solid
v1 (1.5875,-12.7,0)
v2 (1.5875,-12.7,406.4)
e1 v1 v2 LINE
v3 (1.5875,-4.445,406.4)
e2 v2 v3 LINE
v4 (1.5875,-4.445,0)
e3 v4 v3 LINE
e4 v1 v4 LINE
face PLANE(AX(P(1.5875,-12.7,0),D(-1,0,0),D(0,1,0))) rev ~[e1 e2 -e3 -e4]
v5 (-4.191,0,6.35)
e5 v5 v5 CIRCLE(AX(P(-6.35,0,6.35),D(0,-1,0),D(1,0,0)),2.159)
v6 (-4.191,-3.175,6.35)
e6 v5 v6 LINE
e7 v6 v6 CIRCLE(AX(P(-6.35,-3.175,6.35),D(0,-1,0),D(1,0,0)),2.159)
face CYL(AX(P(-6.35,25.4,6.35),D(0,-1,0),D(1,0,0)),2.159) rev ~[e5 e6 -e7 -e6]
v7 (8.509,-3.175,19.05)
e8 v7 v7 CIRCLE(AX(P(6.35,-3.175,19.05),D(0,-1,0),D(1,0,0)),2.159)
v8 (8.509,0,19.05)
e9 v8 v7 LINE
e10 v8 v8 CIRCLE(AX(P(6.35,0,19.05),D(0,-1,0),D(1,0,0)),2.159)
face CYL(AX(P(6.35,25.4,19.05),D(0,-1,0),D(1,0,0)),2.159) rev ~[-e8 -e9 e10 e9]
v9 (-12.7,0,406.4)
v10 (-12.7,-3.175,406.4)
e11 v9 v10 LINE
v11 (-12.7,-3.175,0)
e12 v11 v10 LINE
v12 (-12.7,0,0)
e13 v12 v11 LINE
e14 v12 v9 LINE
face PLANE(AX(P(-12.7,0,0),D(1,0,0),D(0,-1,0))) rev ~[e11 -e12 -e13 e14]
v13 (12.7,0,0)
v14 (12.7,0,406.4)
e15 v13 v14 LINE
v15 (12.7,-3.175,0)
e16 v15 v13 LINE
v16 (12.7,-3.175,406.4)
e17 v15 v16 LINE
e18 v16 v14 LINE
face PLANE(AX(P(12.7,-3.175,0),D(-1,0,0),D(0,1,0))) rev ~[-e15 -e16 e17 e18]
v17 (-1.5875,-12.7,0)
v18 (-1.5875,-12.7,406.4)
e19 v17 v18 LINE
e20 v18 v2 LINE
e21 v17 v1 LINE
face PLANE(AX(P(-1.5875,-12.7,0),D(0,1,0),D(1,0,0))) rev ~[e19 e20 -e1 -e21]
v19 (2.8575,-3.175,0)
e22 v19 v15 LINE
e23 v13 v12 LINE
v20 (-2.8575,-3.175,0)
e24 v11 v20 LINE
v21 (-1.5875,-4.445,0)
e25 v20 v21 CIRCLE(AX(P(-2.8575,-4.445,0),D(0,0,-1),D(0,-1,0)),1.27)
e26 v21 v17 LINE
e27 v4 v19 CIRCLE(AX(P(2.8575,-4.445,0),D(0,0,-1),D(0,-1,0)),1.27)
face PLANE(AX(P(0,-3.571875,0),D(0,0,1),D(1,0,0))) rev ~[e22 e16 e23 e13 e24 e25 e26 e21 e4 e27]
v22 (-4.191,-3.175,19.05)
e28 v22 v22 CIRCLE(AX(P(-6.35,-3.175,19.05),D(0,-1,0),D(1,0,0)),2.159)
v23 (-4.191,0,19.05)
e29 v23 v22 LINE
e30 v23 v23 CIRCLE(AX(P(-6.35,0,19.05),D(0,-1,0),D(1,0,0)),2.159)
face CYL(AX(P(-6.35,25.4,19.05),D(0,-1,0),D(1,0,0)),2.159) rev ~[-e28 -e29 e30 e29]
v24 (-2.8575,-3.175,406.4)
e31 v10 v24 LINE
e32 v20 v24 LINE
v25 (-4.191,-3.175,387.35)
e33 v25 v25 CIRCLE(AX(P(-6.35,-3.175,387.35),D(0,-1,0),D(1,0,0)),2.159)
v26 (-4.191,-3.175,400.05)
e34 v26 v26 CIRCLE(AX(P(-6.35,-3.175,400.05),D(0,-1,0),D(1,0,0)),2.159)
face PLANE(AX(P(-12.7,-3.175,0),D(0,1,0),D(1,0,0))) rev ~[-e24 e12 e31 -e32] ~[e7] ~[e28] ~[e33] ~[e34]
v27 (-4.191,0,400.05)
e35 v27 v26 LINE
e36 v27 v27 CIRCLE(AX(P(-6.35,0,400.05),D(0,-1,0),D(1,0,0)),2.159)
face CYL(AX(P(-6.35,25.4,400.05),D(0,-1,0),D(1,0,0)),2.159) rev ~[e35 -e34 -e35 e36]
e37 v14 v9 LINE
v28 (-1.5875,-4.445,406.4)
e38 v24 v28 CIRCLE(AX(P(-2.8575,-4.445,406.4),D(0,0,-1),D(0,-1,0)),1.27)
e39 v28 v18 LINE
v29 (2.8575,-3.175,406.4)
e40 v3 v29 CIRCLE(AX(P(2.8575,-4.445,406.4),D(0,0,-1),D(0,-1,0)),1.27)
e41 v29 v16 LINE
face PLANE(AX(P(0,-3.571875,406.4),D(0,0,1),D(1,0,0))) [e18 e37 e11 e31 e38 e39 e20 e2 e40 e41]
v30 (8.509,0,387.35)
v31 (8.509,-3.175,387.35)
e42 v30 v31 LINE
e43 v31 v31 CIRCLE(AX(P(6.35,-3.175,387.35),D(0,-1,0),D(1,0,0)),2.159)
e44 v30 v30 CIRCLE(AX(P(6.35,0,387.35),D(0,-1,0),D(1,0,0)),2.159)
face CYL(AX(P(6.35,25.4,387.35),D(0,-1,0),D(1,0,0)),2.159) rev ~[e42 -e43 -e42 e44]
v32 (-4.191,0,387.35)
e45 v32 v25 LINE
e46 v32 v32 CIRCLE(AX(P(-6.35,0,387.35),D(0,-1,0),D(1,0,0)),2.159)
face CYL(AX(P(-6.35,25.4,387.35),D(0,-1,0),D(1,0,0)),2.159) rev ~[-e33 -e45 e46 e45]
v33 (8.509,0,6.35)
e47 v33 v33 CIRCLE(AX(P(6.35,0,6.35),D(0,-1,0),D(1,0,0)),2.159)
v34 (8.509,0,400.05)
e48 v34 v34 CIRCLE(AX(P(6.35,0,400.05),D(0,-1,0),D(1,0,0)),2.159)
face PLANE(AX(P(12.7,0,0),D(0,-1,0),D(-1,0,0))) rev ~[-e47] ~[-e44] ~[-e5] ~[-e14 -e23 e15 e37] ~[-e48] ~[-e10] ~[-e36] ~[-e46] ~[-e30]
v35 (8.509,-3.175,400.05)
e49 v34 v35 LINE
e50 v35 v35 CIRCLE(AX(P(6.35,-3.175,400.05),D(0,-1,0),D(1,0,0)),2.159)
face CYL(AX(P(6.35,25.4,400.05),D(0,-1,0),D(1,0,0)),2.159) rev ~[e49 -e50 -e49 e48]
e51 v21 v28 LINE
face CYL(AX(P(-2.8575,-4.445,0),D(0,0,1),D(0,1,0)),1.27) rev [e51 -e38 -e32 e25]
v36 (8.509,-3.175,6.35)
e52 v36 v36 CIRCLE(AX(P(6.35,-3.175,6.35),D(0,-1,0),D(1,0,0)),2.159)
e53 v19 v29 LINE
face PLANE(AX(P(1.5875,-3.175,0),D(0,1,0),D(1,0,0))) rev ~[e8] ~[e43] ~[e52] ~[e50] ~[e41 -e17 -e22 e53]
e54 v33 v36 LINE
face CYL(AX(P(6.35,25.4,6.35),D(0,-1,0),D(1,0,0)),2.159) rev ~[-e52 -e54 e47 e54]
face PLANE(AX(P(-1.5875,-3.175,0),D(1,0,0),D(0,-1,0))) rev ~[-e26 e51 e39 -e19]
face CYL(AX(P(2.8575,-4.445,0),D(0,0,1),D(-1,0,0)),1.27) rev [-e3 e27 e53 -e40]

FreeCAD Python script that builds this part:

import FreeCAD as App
import Part
import Sketcher

V = App.Vector
Q = App.Units.Quantity


def edges_at(feature, points):
    """Names of the edges that pass closest to the given points."""
    edges = feature.Shape.Edges
    near = lambda p: min(range(len(edges)), key=lambda i: edges[i].distToShape(Part.Vertex(*p))[0])
    return sorted({f"Edge{near(p) + 1}" for p in points})


def add_polygon(sketch, points):
    """Adds a closed chain of lines whose ends are joined by coincident constraints."""
    first, n = sketch.GeometryCount, len(points)
    for a, b in zip(points, points[1:] + points[:1]):
        sketch.addGeometry(Part.LineSegment(App.Vector(*a, 0), App.Vector(*b, 0)), False)
    for i in range(n):
        sketch.addConstraint(Sketcher.Constraint("Coincident", first + i, 2, first + (i + 1) % n, 1))

doc = App.newDocument("Part")
params = doc.addObject("Spreadsheet::Sheet", "Params")
for row, (alias, value) in enumerate([
    ("sketch1_width", "1 in"),
    ("sketch1_width2", "0.4375 in"),
    ("pad1_length", "16 in"),
    ("fillet_radius", "0.05 in"),
    ("sketch2_diameter", "0.17 in"),
    ("hole_diameter", "0.17 in"),
    ("hole_depth", "1 in"),
], start=1):
    params.set(f"A{row}", alias)
    params.set(f"B{row}", "=" + value)
    params.setAlias(f"B{row}", alias)

body = doc.addObject("PartDesign::Body", "Body")

# Sketch on XY plane
sketch1 = body.newObject("Sketcher::SketchObject", "Sketch")
sketch1.AttachmentSupport = (doc.getObject("XY_Plane"), [""])
sketch1.MapMode = "FlatFace"
add_polygon(sketch1, [(12.7, 0), (-12.7, 0), (-12.7, -3.2), (-1.6, -3.2), (-1.6, -12.7), (1.6, -12.7), (1.6, -3.2), (12.7, -3.2)])  # lines 0-7
sketch1.addConstraint(Sketcher.Constraint("Horizontal", 0))
sketch1.addConstraint(Sketcher.Constraint("Vertical", 1))
sketch1.addConstraint(Sketcher.Constraint("Horizontal", 2))
sketch1.addConstraint(Sketcher.Constraint("Vertical", 3))
sketch1.addConstraint(Sketcher.Constraint("Horizontal", 4))
sketch1.addConstraint(Sketcher.Constraint("Vertical", 5))
sketch1.addConstraint(Sketcher.Constraint("Horizontal", 6))
sketch1.addConstraint(Sketcher.Constraint("Vertical", 7))
sketch1.addConstraint(Sketcher.Constraint("Symmetric", 0, 2, 7, 2, -1, 1))
sketch1.addConstraint(Sketcher.Constraint("Symmetric", 2, 2, 5, 2, -2))
sketch1.addConstraint(Sketcher.Constraint("Equal", 4, 1))
sketch1.addConstraint(Sketcher.Constraint("DistanceX", 0, 2, 0, 1, Q("1 in")))
sketch1.addConstraint(Sketcher.Constraint("DistanceY", 3, 2, -1, 1, Q("0.5 in")))
sketch1.addConstraint(Sketcher.Constraint("DistanceX", 2, 1, 2, 2, Q("0.4375 in")))
sketch1.setExpression("Constraints[19]", "Params.sketch1_width")
sketch1.setExpression("Constraints[21]", "Params.sketch1_width2")
pad1 = body.newObject("PartDesign::Pad", "Pad")
pad1.Profile = sketch1
pad1.setExpression("Length", "Params.pad1_length")
doc.recompute()

fillet = body.newObject("PartDesign::Fillet", "Fillet")
fillet.Base = (pad1, edges_at(pad1, [(-1.587, -3.175, 203.2), (1.587, -3.175, 203.2)]))
fillet.setExpression("Radius", "Params.fillet_radius")

# Sketch on XZ plane
sketch2 = body.newObject("Sketcher::SketchObject", "Sketch001")
sketch2.AttachmentSupport = (doc.getObject("XZ_Plane"), [""])
sketch2.MapMode = "FlatFace"
sketch2.addGeometry(Part.Circle(V(6.3, 400.1, 0), V(0, 0, 1), 2.2), False)
sketch2.addGeometry(Part.Circle(V(6.3, 387.4, 0), V(0, 0, 1), 2.2), False)
sketch2.addGeometry(Part.Circle(V(-6.3, 387.4, 0), V(0, 0, 1), 2.2), False)
sketch2.addGeometry(Part.Circle(V(-6.3, 400.1, 0), V(0, 0, 1), 2.2), False)
sketch2.addGeometry(Part.Circle(V(6.3, 6.3, 0), V(0, 0, 1), 2.2), False)
sketch2.addGeometry(Part.Circle(V(6.3, 19.1, 0), V(0, 0, 1), 2.2), False)
sketch2.addGeometry(Part.Circle(V(-6.3, 19.1, 0), V(0, 0, 1), 2.2), False)
sketch2.addGeometry(Part.Circle(V(-6.3, 6.3, 0), V(0, 0, 1), 2.2), False)
sketch2.addConstraint(Sketcher.Constraint("Equal", 0, 1))
sketch2.addConstraint(Sketcher.Constraint("Equal", 1, 2))
sketch2.addConstraint(Sketcher.Constraint("Equal", 2, 3))
sketch2.addConstraint(Sketcher.Constraint("Equal", 3, 4))
sketch2.addConstraint(Sketcher.Constraint("Equal", 4, 5))
sketch2.addConstraint(Sketcher.Constraint("Equal", 5, 6))
sketch2.addConstraint(Sketcher.Constraint("Equal", 6, 7))
sketch2.addConstraint(Sketcher.Constraint("Symmetric", 1, 3, 2, 3, -2))
sketch2.addConstraint(Sketcher.Constraint("Symmetric", 0, 3, 3, 3, -2))
sketch2.addConstraint(Sketcher.Constraint("Symmetric", 5, 3, 6, 3, -2))
sketch2.addConstraint(Sketcher.Constraint("Symmetric", 4, 3, 7, 3, -2))
sketch2.addConstraint(Sketcher.Constraint("Vertical", 0, 3, 1, 3))
sketch2.addConstraint(Sketcher.Constraint("Vertical", 1, 3, 4, 3))
sketch2.addConstraint(Sketcher.Constraint("Vertical", 4, 3, 5, 3))
sketch2.addConstraint(Sketcher.Constraint("Diameter", 0, Q("0.17 in")))
sketch2.addConstraint(Sketcher.Constraint("DistanceY", 4, 3, 1, 3, Q("15 in")))
sketch2.addConstraint(Sketcher.Constraint("DistanceY", 5, 3, 0, 3, Q("15 in")))
sketch2.addConstraint(Sketcher.Constraint("DistanceY", 1, 3, 0, 3, Q("0.5 in")))
sketch2.addConstraint(Sketcher.Constraint("DistanceX", 2, 3, 1, 3, Q("0.5 in")))
sketch2.addConstraint(Sketcher.Constraint("DistanceY", -1, 1, 0, 3, Q("15.75 in")))
sketch2.setExpression("Constraints[14]", "Params.sketch2_diameter")
doc.recompute()
hole = body.newObject("PartDesign::Hole", "Hole")
hole.Profile = sketch2
hole.ThreadType = "None"
hole.setExpression("Diameter", "Params.hole_diameter")
hole.DepthType = "Dimension"
hole.setExpression("Depth", "Params.hole_depth")
hole.DrillPoint = "Angled"
hole.DrillPointAngle = 118
hole.Reversed = True

doc.recompute()
